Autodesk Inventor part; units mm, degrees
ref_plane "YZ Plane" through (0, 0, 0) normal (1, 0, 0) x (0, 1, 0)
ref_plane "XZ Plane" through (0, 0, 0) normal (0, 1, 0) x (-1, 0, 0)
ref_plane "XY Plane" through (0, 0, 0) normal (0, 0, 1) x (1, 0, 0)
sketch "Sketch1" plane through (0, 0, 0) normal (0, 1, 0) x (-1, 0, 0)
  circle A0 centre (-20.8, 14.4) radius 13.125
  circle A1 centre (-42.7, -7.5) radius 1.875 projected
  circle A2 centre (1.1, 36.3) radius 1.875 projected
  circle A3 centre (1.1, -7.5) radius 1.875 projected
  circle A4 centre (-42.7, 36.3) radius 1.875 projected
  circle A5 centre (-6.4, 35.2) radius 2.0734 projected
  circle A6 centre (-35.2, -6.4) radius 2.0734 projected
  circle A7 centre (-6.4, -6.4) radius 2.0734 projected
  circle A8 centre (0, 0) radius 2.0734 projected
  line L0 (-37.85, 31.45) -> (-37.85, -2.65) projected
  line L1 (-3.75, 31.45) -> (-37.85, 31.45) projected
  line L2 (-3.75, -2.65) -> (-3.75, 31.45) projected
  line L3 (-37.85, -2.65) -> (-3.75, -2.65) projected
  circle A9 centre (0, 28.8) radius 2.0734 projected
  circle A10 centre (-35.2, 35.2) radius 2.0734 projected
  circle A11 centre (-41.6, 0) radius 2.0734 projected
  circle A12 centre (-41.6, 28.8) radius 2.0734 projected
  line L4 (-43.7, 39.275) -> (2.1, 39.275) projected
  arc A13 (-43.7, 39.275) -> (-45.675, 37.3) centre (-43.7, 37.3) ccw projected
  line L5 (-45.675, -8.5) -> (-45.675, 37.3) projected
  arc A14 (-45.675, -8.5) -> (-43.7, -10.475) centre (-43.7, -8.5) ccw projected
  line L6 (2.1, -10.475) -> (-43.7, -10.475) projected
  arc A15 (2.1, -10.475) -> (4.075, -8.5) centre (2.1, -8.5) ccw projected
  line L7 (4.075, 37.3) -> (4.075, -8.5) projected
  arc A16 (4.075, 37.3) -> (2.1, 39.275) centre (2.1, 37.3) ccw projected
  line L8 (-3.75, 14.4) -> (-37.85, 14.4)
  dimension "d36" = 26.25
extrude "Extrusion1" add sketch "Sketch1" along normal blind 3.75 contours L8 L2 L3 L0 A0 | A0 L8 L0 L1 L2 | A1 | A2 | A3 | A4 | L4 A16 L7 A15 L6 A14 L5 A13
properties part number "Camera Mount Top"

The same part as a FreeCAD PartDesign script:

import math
import FreeCAD as App
import Part
import Sketcher
from FreeCAD import Vector
Q = App.Units.Quantity

doc = App.newDocument("Part")
body = doc.addObject("PartDesign::Body", "Body")

# Sketch on XZ plane
sketch1 = body.newObject("Sketcher::SketchObject", "Sketch")
sketch1.AttachmentSupport = (doc.getObject("XZ_Plane"), [""])
sketch1.MapMode = "FlatFace"
sketch1.addGeometry([
    Part.LineSegment(Vector(-2.1, 39.3, 0), Vector(43.7, 39.3, 0)),  # 0
    Part.ArcOfCircle(Part.Circle(Vector(43.7, 37.3, 0), Vector(0, 0, 1), 2), math.radians(0), math.radians(90)),  # 1
    Part.LineSegment(Vector(45.7, 37.3, 0), Vector(45.7, -8.5, 0)),  # 2
    Part.ArcOfCircle(Part.Circle(Vector(43.7, -8.5, 0), Vector(0, 0, 1), 2), math.radians(-90), math.radians(0)),  # 3
    Part.LineSegment(Vector(43.7, -10.5, 0), Vector(-2.1, -10.5, 0)),  # 4
    Part.ArcOfCircle(Part.Circle(Vector(-2.1, -8.5, 0), Vector(0, 0, 1), 2), math.radians(180), math.radians(270)),  # 5
    Part.LineSegment(Vector(-4.1, -8.5, 0), Vector(-4.1, 37.3, 0)),  # 6
    Part.ArcOfCircle(Part.Circle(Vector(-2.1, 37.3, 0), Vector(0, 0, 1), 2), math.radians(90), math.radians(180)),  # 7
    Part.Circle(Vector(20.8, 14.4, 0), Vector(0, 0, 1), 13.1),  # 8
    Part.Circle(Vector(35.2, -6.4, 0), Vector(0, 0, 1), 2.1),  # 9
    Part.Circle(Vector(41.6, 0, 0), Vector(0, 0, 1), 2.1),  # 10
    Part.Circle(Vector(6.4, -6.4, 0), Vector(0, 0, 1), 2.1),  # 11
    Part.Circle(Vector(0, 0, 0), Vector(0, 0, 1), 2.1),  # 12
    Part.Circle(Vector(35.2, 35.2, 0), Vector(0, 0, 1), 2.1),  # 13
    Part.Circle(Vector(41.6, 28.8, 0), Vector(0, 0, 1), 2.1),  # 14
    Part.Circle(Vector(0, 28.8, 0), Vector(0, 0, 1), 2.1),  # 15
    Part.Circle(Vector(6.4, 35.2, 0), Vector(0, 0, 1), 2.1),  # 16
], False)
sketch1.addConstraint([
    Sketcher.Constraint("Tangent", 0, 2, 1, 2),
    Sketcher.Constraint("Tangent", 1, 1, 2, 1),
    Sketcher.Constraint("Tangent", 2, 2, 3, 2),
    Sketcher.Constraint("Tangent", 3, 1, 4, 1),
    Sketcher.Constraint("Tangent", 4, 2, 5, 2),
    Sketcher.Constraint("Tangent", 5, 1, 6, 1),
    Sketcher.Constraint("Tangent", 6, 2, 7, 2),
    Sketcher.Constraint("Tangent", 7, 1, 0, 1),
    Sketcher.Constraint("Horizontal", 0),
    Sketcher.Constraint("Vertical", 2),
    Sketcher.Constraint("Horizontal", 4),
    Sketcher.Constraint("Vertical", 6),
    Sketcher.Constraint("Coincident", 12, 3, -1, 1),
    Sketcher.Constraint("Equal", 1, 3),
    Sketcher.Constraint("Equal", 3, 5),
    Sketcher.Constraint("Equal", 5, 7),
    Sketcher.Constraint("Equal", 9, 10),
    Sketcher.Constraint("Equal", 10, 11),
    Sketcher.Constraint("Equal", 11, 12),
    Sketcher.Constraint("Equal", 12, 13),
    Sketcher.Constraint("Equal", 13, 14),
    Sketcher.Constraint("Equal", 14, 15),
    Sketcher.Constraint("Equal", 15, 16),
    Sketcher.Constraint("PointOnObject", 10, 3, -1),
    Sketcher.Constraint("PointOnObject", 15, 3, -2),
    Sketcher.Constraint("Horizontal", 9, 3, 11, 3),
    Sketcher.Constraint("Horizontal", 14, 3, 15, 3),
    Sketcher.Constraint("Horizontal", 13, 3, 16, 3),
    Sketcher.Constraint("Vertical", 9, 3, 13, 3),
    Sketcher.Constraint("Vertical", 10, 3, 14, 3),
    Sketcher.Constraint("Vertical", 11, 3, 16, 3),
    Sketcher.Constraint("Equal", 4, 2),
    Sketcher.Constraint("Diameter", 8, Q("26.25 mm")),
    Sketcher.Constraint("DistanceX", 0, 1, 0, 2, Q("45.8 mm")),
    Sketcher.Constraint("Radius", 1, Q("1.975 mm")),
    Sketcher.Constraint("Diameter", 9, Q("4.1468 mm")),
    Sketcher.Constraint("DistanceX", -1, 1, 1, 3, Q("43.7 mm")),
    Sketcher.Constraint("DistanceY", -1, 1, 1, 3, Q("37.3 mm")),
    Sketcher.Constraint("DistanceX", -1, 1, 8, 3, Q("20.8 mm")),
    Sketcher.Constraint("DistanceY", -1, 1, 8, 3, Q("14.4 mm")),
    Sketcher.Constraint("DistanceX", -1, 1, 9, 3, Q("35.2 mm")),
    Sketcher.Constraint("DistanceY", 9, 3, -1, 1, Q("6.4 mm")),
    Sketcher.Constraint("DistanceX", -1, 1, 10, 3, Q("41.6 mm")),
    Sketcher.Constraint("DistanceX", -1, 1, 11, 3, Q("6.4 mm")),
    Sketcher.Constraint("DistanceY", -1, 1, 13, 3, Q("35.2 mm")),
    Sketcher.Constraint("DistanceY", -1, 1, 14, 3, Q("28.8 mm")),
])
pad1 = body.newObject("PartDesign::Pad", "Pad")
pad1.Profile = sketch1
pad1.Length = 3.75
pad1.Reversed = True

doc.recompute()
